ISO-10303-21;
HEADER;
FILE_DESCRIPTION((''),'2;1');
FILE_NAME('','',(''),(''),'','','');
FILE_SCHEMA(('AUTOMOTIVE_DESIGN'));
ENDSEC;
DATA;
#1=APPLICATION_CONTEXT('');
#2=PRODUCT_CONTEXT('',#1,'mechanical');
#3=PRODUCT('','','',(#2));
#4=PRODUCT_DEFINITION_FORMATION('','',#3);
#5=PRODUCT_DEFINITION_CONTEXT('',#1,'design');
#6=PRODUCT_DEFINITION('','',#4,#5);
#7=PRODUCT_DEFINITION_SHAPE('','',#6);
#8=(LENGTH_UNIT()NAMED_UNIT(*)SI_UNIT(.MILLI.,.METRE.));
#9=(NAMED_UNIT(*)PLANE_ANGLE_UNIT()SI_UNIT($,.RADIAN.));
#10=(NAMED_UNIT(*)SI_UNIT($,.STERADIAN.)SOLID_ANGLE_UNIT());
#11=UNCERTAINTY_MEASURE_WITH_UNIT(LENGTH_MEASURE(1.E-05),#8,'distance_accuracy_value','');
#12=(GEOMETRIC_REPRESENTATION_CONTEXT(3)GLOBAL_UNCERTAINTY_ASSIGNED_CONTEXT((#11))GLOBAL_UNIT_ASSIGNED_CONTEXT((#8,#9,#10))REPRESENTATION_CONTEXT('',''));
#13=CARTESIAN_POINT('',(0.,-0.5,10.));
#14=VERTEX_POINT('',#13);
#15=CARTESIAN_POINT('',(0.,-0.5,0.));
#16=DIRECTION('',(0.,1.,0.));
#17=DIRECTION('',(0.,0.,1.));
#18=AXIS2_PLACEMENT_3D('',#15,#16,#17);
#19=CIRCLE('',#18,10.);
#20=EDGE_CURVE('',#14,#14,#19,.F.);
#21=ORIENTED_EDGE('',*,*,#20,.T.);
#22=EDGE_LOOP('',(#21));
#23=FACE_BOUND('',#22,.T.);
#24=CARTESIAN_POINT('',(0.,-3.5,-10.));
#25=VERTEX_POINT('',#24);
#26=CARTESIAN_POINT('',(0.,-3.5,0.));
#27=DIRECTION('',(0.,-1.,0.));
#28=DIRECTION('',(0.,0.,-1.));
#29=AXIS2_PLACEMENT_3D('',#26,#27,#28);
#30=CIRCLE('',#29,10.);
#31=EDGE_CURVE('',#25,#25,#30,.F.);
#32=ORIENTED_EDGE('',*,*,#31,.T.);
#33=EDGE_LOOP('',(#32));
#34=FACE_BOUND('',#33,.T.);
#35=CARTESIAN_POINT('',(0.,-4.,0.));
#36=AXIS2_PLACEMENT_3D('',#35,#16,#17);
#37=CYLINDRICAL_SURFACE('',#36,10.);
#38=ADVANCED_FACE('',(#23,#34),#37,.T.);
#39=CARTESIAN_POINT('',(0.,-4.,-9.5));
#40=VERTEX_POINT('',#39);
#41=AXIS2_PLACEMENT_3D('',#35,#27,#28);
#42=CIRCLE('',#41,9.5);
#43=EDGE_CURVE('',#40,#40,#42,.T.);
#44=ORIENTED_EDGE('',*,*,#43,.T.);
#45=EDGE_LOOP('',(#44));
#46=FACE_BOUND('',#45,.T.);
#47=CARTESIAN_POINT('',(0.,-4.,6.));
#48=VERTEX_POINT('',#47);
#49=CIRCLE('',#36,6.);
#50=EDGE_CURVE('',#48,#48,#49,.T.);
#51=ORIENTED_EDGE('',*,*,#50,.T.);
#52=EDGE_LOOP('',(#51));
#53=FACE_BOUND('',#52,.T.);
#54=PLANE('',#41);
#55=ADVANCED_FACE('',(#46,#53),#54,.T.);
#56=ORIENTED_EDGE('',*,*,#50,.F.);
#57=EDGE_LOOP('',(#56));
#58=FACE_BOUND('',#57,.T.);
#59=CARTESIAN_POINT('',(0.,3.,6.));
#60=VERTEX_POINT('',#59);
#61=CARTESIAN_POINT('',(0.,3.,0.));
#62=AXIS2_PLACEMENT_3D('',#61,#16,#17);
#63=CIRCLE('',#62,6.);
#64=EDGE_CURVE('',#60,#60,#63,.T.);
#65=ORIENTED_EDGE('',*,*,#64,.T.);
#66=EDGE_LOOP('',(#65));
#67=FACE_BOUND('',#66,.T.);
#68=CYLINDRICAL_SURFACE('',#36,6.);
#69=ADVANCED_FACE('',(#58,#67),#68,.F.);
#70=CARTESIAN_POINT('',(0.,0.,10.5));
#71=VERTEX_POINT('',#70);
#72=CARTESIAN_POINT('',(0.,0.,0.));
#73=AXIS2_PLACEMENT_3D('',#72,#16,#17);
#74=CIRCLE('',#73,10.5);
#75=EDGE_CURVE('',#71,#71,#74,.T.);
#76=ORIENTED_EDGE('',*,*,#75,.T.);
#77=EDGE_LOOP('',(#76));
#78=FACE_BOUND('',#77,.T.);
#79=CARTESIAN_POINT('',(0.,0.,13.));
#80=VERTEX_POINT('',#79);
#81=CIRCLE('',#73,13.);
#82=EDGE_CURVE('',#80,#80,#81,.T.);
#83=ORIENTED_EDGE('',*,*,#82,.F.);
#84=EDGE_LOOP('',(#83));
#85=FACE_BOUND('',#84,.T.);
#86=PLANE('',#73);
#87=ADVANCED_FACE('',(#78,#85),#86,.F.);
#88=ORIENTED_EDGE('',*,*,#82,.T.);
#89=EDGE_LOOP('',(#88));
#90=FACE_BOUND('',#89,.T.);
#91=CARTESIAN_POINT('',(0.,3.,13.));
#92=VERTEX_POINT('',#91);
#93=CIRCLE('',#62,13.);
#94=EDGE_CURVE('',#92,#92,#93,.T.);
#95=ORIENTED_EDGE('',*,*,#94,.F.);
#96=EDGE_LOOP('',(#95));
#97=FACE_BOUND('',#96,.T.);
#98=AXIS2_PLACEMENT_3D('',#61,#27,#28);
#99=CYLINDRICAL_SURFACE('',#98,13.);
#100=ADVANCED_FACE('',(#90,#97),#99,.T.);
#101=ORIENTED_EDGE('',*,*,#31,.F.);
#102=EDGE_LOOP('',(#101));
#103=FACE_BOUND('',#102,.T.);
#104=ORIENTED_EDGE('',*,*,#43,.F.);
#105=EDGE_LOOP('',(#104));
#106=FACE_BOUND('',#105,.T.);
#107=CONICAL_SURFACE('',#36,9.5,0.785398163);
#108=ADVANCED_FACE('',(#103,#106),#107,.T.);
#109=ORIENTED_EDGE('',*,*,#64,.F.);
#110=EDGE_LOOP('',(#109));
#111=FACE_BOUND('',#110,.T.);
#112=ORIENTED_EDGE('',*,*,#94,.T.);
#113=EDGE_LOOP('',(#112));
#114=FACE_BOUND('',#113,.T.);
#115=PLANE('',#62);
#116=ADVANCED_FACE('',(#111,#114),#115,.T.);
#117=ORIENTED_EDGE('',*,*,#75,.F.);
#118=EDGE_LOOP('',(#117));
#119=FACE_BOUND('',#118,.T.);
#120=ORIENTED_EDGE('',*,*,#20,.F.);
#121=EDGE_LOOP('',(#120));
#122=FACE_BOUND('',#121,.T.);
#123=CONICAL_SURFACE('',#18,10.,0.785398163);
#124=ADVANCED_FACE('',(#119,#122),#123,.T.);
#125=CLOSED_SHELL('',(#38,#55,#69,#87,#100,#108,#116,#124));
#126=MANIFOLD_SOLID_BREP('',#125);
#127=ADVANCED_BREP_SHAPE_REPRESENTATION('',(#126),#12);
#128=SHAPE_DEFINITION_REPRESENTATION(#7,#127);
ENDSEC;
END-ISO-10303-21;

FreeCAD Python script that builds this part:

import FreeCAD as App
import Part
import Sketcher


def edges_at(feature, points):
    """Names of the edges that pass closest to the given points."""
    edges = feature.Shape.Edges
    near = lambda p: min(range(len(edges)), key=lambda i: edges[i].distToShape(Part.Vertex(*p))[0])
    return sorted({f"Edge{near(p) + 1}" for p in points})

doc = App.newDocument("Part")
body = doc.addObject("PartDesign::Body", "Body")

sketch1 = doc.addObject("Sketcher::SketchObject", "Sketch")
body.addObject(sketch1)
sketch1.AttachmentSupport = (doc.XZ_Plane, [""])
sketch1.MapMode = "FlatFace"
sketch1.addGeometry(Part.Circle(App.Vector(0, 0, 0), App.Vector(0, 0, 1), 13), False)
sketch1.addConstraint([
    Sketcher.Constraint("Coincident", 0, 3, -1, 1),
    Sketcher.Constraint("Diameter", 0, 26.0),
])
pad1 = doc.addObject("PartDesign::Pad", "Pad")
body.addObject(pad1)
pad1.Profile = sketch1
pad1.Length = 3
pad1.Reversed = True

sketch2 = doc.addObject("Sketcher::SketchObject", "Sketch001")
body.addObject(sketch2)
sketch2.AttachmentSupport = (doc.XZ_Plane, [""])
sketch2.MapMode = "FlatFace"
sketch2.addGeometry(Part.Circle(App.Vector(0, 0, 0), App.Vector(0, 0, 1), 10), False)
sketch2.addConstraint([
    Sketcher.Constraint("Coincident", 0, 3, -1, 1),
    Sketcher.Constraint("Diameter", 0, 20.0),
])
pad2 = doc.addObject("PartDesign::Pad", "Pad001")
body.addObject(pad2)
pad2.Profile = sketch2
pad2.Length = 4
doc.recompute()

chamfer = doc.addObject("PartDesign::Chamfer", "Chamfer")
body.addObject(chamfer)
chamfer.Base = (pad2, edges_at(pad2, [(0, 0, 10), (0, -4, 10)]))
chamfer.Size = 0.5

sketch3 = doc.addObject("Sketcher::SketchObject", "Sketch002")
body.addObject(sketch3)
sketch3.AttachmentSupport = (doc.XZ_Plane, [""])
sketch3.MapMode = "FlatFace"
sketch3.AttachmentOffset = App.Placement(App.Vector(0, 0, -3), App.Rotation())
sketch3.addGeometry(Part.Circle(App.Vector(0, 0, 0), App.Vector(0, 0, 1), 6), False)
sketch3.addConstraint([
    Sketcher.Constraint("Coincident", 0, 3, -1, 1),
    Sketcher.Constraint("Diameter", 0, 12.0),
])
pocket1 = doc.addObject("PartDesign::Pocket", "Pocket")
body.addObject(pocket1)
pocket1.Profile = sketch3
pocket1.Type = "ThroughAll"
pocket1.Reversed = True

doc.recompute()
